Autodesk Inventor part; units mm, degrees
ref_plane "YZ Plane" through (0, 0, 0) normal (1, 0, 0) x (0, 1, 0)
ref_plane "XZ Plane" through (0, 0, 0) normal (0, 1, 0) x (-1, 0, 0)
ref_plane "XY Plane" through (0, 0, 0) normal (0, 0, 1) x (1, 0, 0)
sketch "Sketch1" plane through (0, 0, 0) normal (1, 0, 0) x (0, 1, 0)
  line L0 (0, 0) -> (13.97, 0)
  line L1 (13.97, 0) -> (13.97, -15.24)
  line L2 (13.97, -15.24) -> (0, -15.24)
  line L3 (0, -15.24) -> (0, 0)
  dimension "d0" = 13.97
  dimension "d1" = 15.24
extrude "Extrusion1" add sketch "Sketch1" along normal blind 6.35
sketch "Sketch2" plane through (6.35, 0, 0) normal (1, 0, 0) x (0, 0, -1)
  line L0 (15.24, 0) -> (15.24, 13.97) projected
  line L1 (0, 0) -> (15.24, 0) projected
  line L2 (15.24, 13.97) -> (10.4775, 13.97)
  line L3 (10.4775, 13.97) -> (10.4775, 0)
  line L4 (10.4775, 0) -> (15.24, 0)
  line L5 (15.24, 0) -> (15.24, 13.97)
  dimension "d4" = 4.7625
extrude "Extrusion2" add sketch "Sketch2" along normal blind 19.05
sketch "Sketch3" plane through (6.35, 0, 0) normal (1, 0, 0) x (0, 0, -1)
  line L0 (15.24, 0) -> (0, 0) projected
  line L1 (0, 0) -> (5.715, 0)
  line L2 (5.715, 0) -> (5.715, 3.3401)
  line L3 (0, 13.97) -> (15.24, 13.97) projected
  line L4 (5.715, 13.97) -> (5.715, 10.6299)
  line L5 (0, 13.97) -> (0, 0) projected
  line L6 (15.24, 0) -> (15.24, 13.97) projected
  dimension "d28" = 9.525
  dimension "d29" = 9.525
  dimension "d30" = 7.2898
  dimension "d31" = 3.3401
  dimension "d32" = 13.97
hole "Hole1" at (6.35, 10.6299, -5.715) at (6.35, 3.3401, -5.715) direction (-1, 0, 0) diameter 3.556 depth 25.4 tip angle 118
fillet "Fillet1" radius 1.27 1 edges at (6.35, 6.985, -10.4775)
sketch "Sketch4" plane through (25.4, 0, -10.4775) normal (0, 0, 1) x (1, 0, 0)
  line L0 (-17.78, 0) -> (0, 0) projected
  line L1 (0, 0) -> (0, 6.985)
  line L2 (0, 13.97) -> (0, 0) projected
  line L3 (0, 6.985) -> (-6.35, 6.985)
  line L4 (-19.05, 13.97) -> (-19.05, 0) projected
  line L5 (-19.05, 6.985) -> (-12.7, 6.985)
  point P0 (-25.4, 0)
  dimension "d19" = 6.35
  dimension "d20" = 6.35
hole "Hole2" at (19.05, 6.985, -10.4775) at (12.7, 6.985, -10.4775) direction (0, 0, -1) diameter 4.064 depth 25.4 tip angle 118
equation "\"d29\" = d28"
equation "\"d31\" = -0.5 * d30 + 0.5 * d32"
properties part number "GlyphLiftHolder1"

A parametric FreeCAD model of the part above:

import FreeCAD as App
import Part
import Sketcher
Q = App.Units.Quantity


def edges_at(feature, points):
    """Names of the edges that pass closest to the given points."""
    edges = feature.Shape.Edges
    near = lambda p: min(range(len(edges)), key=lambda i: edges[i].distToShape(Part.Vertex(*p))[0])
    return sorted({f"Edge{near(p) + 1}" for p in points})


def add_polygon(sketch, points):
    """Adds a closed chain of lines whose ends are joined by coincident constraints."""
    first, n = sketch.GeometryCount, len(points)
    for a, b in zip(points, points[1:] + points[:1]):
        sketch.addGeometry(Part.LineSegment(App.Vector(*a, 0), App.Vector(*b, 0)), False)
    for i in range(n):
        sketch.addConstraint(Sketcher.Constraint("Coincident", first + i, 2, first + (i + 1) % n, 1))

doc = App.newDocument("Part")
body = doc.addObject("PartDesign::Body", "Body")

sketch1 = doc.addObject("Sketcher::SketchObject", "Sketch")
body.addObject(sketch1)
sketch1.AttachmentSupport = (doc.YZ_Plane, [""])
sketch1.MapMode = "FlatFace"
add_polygon(sketch1, [(14, 0), (0, 0), (0, -15), (14, -15)])
sketch1.addConstraint([
    Sketcher.Constraint("Horizontal", 0),
    Sketcher.Constraint("Vertical", 1),
    Sketcher.Constraint("Horizontal", 2),
    Sketcher.Constraint("Vertical", 3),
    Sketcher.Constraint("Coincident", 0, 2, -1, 1),
    Sketcher.Constraint("DistanceY", 1, 2, 1, 1, Q("0.6 in")),
    Sketcher.Constraint("DistanceX", 0, 2, 0, 1, Q("0.55 in")),
])
pad1 = doc.addObject("PartDesign::Pad", "Pad")
body.addObject(pad1)
pad1.Profile = sketch1
pad1.Length = Q("0.25 in")

sketch2 = doc.addObject("Sketcher::SketchObject", "Sketch001")
body.addObject(sketch2)
sketch2.AttachmentSupport = (doc.YZ_Plane, [""])
sketch2.MapMode = "FlatFace"
sketch2.AttachmentOffset = App.Placement(App.Vector(0, 0, 0.25 * 25.4), App.Rotation())
add_polygon(sketch2, [(0, -10.5), (0, -15.2), (14, -15.2), (14, -10.5)])
sketch2.addConstraint([
    Sketcher.Constraint("Vertical", 0),
    Sketcher.Constraint("Horizontal", 1),
    Sketcher.Constraint("Vertical", 2),
    Sketcher.Constraint("Horizontal", 3),
    Sketcher.Constraint("PointOnObject", 0, 2, -2),
    Sketcher.Constraint("DistanceY", 0, 2, 0, 1, Q("0.1875 in")),
    Sketcher.Constraint("DistanceX", 1, 1, 1, 2, Q("0.55 in")),
    Sketcher.Constraint("DistanceY", 0, 2, -1, 1, Q("0.6 in")),
])
pad2 = doc.addObject("PartDesign::Pad", "Pad001")
body.addObject(pad2)
pad2.Profile = sketch2
pad2.Length = Q("0.75 in")

sketch3 = doc.addObject("Sketcher::SketchObject", "Sketch002")
body.addObject(sketch3)
sketch3.AttachmentSupport = (doc.YZ_Plane, [""])
sketch3.MapMode = "FlatFace"
sketch3.AttachmentOffset = App.Placement(App.Vector(0, 0, 0.25 * 25.4), App.Rotation())
sketch3.addGeometry([
    Part.Circle(App.Vector(10.6, -5.7, 0), App.Vector(0, 0, 1), 1.8),
    Part.Circle(App.Vector(3.3, -5.7, 0), App.Vector(0, 0, 1), 1.8),
], False)
sketch3.addConstraint([
    Sketcher.Constraint("Equal", 0, 1),
    Sketcher.Constraint("Horizontal", 0, 3, 1, 3),
    Sketcher.Constraint("Diameter", 0, Q("0.14 in")),
    Sketcher.Constraint("DistanceY", 0, 3, -1, 1, Q("0.225 in")),
    Sketcher.Constraint("DistanceX", 1, 3, 0, 3, Q("0.287 in")),
    Sketcher.Constraint("DistanceX", -1, 1, 0, 3, Q("0.4185 in")),
])
doc.recompute()
hole = doc.addObject("PartDesign::Hole", "Hole")
body.addObject(hole)
hole.Profile = sketch3
hole.ThreadType = "None"
hole.Diameter = Q("0.14 in")
hole.DepthType = "Dimension"
hole.Depth = Q("1 in")
hole.DrillPoint = "Angled"
hole.DrillPointAngle = 118
doc.recompute()

fillet = doc.addObject("PartDesign::Fillet", "Fillet")
body.addObject(fillet)
fillet.Base = (hole, edges_at(hole, [(6.35, 6.985, -10.477)]))
fillet.Radius = Q("0.05 in")

sketch4 = doc.addObject("Sketcher::SketchObject", "Sketch003")
body.addObject(sketch4)
sketch4.AttachmentSupport = (doc.XY_Plane, [""])
sketch4.MapMode = "FlatFace"
sketch4.AttachmentOffset = App.Placement(App.Vector(0, 0, -0.4125 * 25.4), App.Rotation())
sketch4.addGeometry([
    Part.Circle(App.Vector(19.1, 7, 0), App.Vector(0, 0, 1), 2),
    Part.Circle(App.Vector(12.7, 7, 0), App.Vector(0, 0, 1), 2),
], False)
sketch4.addConstraint([
    Sketcher.Constraint("Equal", 0, 1),
    Sketcher.Constraint("Horizontal", 0, 3, 1, 3),
    Sketcher.Constraint("Diameter", 0, Q("0.16 in")),
    Sketcher.Constraint("DistanceX", -1, 1, 1, 3, Q("0.5 in")),
    Sketcher.Constraint("DistanceX", -1, 1, 0, 3, Q("0.75 in")),
    Sketcher.Constraint("DistanceY", -1, 1, 0, 3, Q("0.275 in")),
])
doc.recompute()
hole2 = doc.addObject("PartDesign::Hole", "Hole001")
body.addObject(hole2)
hole2.Profile = sketch4
hole2.ThreadType = "None"
hole2.Diameter = Q("0.16 in")
hole2.DepthType = "Dimension"
hole2.Depth = Q("1 in")
hole2.DrillPoint = "Angled"
hole2.DrillPointAngle = 118

doc.recompute()
